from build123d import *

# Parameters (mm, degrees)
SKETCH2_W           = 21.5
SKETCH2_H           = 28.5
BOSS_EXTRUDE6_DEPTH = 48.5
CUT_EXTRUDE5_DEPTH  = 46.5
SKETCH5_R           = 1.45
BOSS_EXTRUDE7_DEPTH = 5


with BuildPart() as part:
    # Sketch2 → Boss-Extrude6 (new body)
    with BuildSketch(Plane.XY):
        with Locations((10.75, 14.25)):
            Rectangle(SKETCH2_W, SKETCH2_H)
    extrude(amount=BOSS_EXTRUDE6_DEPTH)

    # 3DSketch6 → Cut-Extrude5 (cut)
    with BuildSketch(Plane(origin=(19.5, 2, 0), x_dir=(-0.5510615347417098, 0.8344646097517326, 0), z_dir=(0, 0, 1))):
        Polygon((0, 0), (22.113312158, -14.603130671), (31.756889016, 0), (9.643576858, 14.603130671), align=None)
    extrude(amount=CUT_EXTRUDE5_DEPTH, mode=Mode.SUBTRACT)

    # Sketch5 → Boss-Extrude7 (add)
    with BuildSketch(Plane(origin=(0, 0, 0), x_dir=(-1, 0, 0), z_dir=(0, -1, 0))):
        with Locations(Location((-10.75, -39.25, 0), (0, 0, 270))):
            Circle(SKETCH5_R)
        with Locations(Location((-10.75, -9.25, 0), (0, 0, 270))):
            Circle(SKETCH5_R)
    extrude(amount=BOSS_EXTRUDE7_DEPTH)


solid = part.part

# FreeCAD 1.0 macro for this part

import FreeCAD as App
import Part
import Sketcher

doc = App.newDocument("Part")
params = doc.addObject("Spreadsheet::Sheet", "Params")
for row, (alias, value) in enumerate([
    ("sketch1_width", "21.5 mm"),
    ("sketch1_height", "28.5 mm"),
    ("pad1_length", "48.5 mm"),
    ("sketch2_width", "17.5 mm"),
    ("sketch2_height", "26.5 mm"),
    ("pocket1_length", "46.5 mm"),
    ("sketch3_diameter", "2.9 mm"),
    ("pad2_length", "5 mm"),
], start=1):
    params.set(f"A{row}", alias)
    params.set(f"B{row}", "=" + value)
    params.setAlias(f"B{row}", alias)

body = doc.addObject("PartDesign::Body", "Body")

sketch1 = doc.addObject("Sketcher::SketchObject", "Sketch")
body.addObject(sketch1)
sketch1.AttachmentSupport = (doc.XY_Plane, [""])
sketch1.MapMode = "FlatFace"
sketch1.addGeometry([
    Part.LineSegment(App.Vector(0, 28.5, 0), App.Vector(0, 0, 0)),
    Part.LineSegment(App.Vector(0, 0, 0), App.Vector(21.5, 0, 0)),
    Part.LineSegment(App.Vector(21.5, 0, 0), App.Vector(21.5, 28.5, 0)),
    Part.LineSegment(App.Vector(21.5, 28.5, 0), App.Vector(0, 28.5, 0)),
], False)
sketch1.addConstraint([
    Sketcher.Constraint("Coincident", 0, 2, 1, 1),
    Sketcher.Constraint("Coincident", 1, 2, 2, 1),
    Sketcher.Constraint("Coincident", 2, 2, 3, 1),
    Sketcher.Constraint("Coincident", 3, 2, 0, 1),
    Sketcher.Constraint("Vertical", 0),
    Sketcher.Constraint("Horizontal", 1),
    Sketcher.Constraint("Vertical", 2),
    Sketcher.Constraint("Horizontal", 3),
    Sketcher.Constraint("Coincident", 0, 2, -1, 1),
    Sketcher.Constraint("DistanceX", 1, 1, 1, 2, 21.5),
    Sketcher.Constraint("DistanceY", 0, 2, 0, 1, 28.5),
])
sketch1.setExpression("Constraints[9]", "Params.sketch1_width")
sketch1.setExpression("Constraints[10]", "Params.sketch1_height")
pad1 = doc.addObject("PartDesign::Pad", "Pad")
body.addObject(pad1)
pad1.Profile = sketch1
pad1.setExpression("Length", "Params.pad1_length")

sketch2 = doc.addObject("Sketcher::SketchObject", "Sketch001")
body.addObject(sketch2)
sketch2.AttachmentSupport = (doc.XY_Plane, [""])
sketch2.MapMode = "FlatFace"
sketch2.addGeometry([
    Part.LineSegment(App.Vector(19.5, 2, 0), App.Vector(19.5, 28.5, 0)),
    Part.LineSegment(App.Vector(19.5, 28.5, 0), App.Vector(2, 28.5, 0)),
    Part.LineSegment(App.Vector(2, 28.5, 0), App.Vector(2, 2, 0)),
    Part.LineSegment(App.Vector(2, 2, 0), App.Vector(19.5, 2, 0)),
], False)
sketch2.addConstraint([
    Sketcher.Constraint("Coincident", 0, 2, 1, 1),
    Sketcher.Constraint("Coincident", 1, 2, 2, 1),
    Sketcher.Constraint("Coincident", 2, 2, 3, 1),
    Sketcher.Constraint("Coincident", 3, 2, 0, 1),
    Sketcher.Constraint("Vertical", 0),
    Sketcher.Constraint("Horizontal", 1),
    Sketcher.Constraint("Vertical", 2),
    Sketcher.Constraint("Horizontal", 3),
    Sketcher.Constraint("DistanceX", 1, 2, 1, 1, 17.5),
    Sketcher.Constraint("DistanceY", 0, 1, 0, 2, 26.5),
    Sketcher.Constraint("DistanceX", -1, 1, 1, 2, 2.0),
    Sketcher.Constraint("DistanceY", -1, 1, 2, 2, 2.0),
])
sketch2.setExpression("Constraints[8]", "Params.sketch2_width")
sketch2.setExpression("Constraints[9]", "Params.sketch2_height")
pocket1 = doc.addObject("PartDesign::Pocket", "Pocket")
body.addObject(pocket1)
pocket1.Profile = sketch2
pocket1.setExpression("Length", "Params.pocket1_length")
pocket1.Reversed = True

sketch3 = doc.addObject("Sketcher::SketchObject", "Sketch002")
body.addObject(sketch3)
sketch3.AttachmentSupport = (doc.XZ_Plane, [""])
sketch3.MapMode = "FlatFace"
sketch3.addGeometry([
    Part.Circle(App.Vector(10.75, 39.25, 0), App.Vector(0, 0, 1), 1.45),
    Part.Circle(App.Vector(10.75, 9.25, 0), App.Vector(0, 0, 1), 1.45),
], False)
sketch3.addConstraint([
    Sketcher.Constraint("Equal", 0, 1),
    Sketcher.Constraint("Vertical", 0, 3, 1, 3),
    Sketcher.Constraint("Diameter", 0, 2.9),
    Sketcher.Constraint("DistanceY", 1, 3, 0, 3, 30.0),
    Sketcher.Constraint("DistanceX", -1, 1, 0, 3, 10.75),
    Sketcher.Constraint("DistanceY", -1, 1, 0, 3, 39.25),
])
sketch3.setExpression("Constraints[2]", "Params.sketch3_diameter")
pad2 = doc.addObject("PartDesign::Pad", "Pad001")
body.addObject(pad2)
pad2.Profile = sketch3
pad2.setExpression("Length", "Params.pad2_length")

doc.recompute()
